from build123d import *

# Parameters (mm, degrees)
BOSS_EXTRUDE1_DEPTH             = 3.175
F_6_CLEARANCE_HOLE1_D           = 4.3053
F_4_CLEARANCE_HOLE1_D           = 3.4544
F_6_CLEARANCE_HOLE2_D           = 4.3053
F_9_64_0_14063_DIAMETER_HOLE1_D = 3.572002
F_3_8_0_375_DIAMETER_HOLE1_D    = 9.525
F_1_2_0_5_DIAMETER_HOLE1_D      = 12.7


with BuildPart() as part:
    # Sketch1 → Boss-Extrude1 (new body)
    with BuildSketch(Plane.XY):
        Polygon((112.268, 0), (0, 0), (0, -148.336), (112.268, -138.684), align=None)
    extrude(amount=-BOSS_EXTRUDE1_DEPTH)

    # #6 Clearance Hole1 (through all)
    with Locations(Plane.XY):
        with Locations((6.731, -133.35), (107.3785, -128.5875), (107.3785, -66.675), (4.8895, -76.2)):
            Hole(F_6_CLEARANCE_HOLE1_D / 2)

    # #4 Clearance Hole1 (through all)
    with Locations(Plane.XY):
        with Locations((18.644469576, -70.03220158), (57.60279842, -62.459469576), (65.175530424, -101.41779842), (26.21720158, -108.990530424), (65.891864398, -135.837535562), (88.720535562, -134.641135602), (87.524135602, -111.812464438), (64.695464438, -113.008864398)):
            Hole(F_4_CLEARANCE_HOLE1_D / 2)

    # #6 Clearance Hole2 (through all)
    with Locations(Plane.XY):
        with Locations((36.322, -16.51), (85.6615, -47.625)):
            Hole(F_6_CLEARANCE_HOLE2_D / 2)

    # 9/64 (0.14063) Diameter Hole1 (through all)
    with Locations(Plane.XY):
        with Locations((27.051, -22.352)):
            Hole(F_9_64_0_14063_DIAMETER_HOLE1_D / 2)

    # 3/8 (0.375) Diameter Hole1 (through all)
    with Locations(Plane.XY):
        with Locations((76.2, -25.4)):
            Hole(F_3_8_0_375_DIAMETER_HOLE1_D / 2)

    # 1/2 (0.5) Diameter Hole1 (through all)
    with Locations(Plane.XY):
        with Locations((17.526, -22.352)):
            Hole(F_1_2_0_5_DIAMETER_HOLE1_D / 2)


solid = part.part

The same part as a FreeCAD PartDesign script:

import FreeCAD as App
import Part
import Sketcher
Q = App.Units.Quantity


def add_polygon(sketch, points):
    """Adds a closed chain of lines whose ends are joined by coincident constraints."""
    first, n = sketch.GeometryCount, len(points)
    for a, b in zip(points, points[1:] + points[:1]):
        sketch.addGeometry(Part.LineSegment(App.Vector(*a, 0), App.Vector(*b, 0)), False)
    for i in range(n):
        sketch.addConstraint(Sketcher.Constraint("Coincident", first + i, 2, first + (i + 1) % n, 1))

doc = App.newDocument("Part")
params = doc.addObject("Spreadsheet::Sheet", "Params")
for row, (alias, value) in enumerate([
    ("sketch1_width", "4.42 in"),
    ("sketch1_height", "5.84 in"),
    ("sketch1_height2", "5.46 in"),
    ("pad1_length", "0.125 in"),
    ("hole_diameter", "0.1695 in"),
    ("sketch3_diameter", "0.136 in"),
    ("hole2_diameter", "0.136 in"),
    ("hole3_diameter", "0.1695 in"),
    ("hole4_diameter", "3.572002 mm"),
    ("sketch6_diameter", "0.375 in"),
    ("hole5_diameter", "0.375 in"),
    ("sketch7_diameter", "0.5 in"),
    ("hole6_diameter", "0.5 in"),
], start=1):
    params.set(f"A{row}", alias)
    params.set(f"B{row}", "=" + value)
    params.setAlias(f"B{row}", alias)

body = doc.addObject("PartDesign::Body", "Body")

sketch1 = body.newObject("Sketcher::SketchObject", "Sketch")
sketch1.AttachmentSupport = (doc.getObject("XY_Plane"), [""])
sketch1.MapMode = "FlatFace"
add_polygon(sketch1, [(112.268, 0), (0, 0), (0, -148.336), (112.268, -138.684)])
sketch1.addConstraint([
    Sketcher.Constraint("Horizontal", 0),
    Sketcher.Constraint("Vertical", 1),
    Sketcher.Constraint("Vertical", 3),
    Sketcher.Constraint("Coincident", 0, 2, -1, 1),
    Sketcher.Constraint("DistanceX", 0, 2, 0, 1, Q("4.42 in")),
    Sketcher.Constraint("DistanceY", 1, 2, 1, 1, Q("5.84 in")),
    Sketcher.Constraint("DistanceY", 3, 1, 3, 2, Q("5.46 in")),
])
sketch1.setExpression("Constraints[8]", "Params.sketch1_width")
sketch1.setExpression("Constraints[9]", "Params.sketch1_height")
sketch1.setExpression("Constraints[10]", "Params.sketch1_height2")
pad1 = body.newObject("PartDesign::Pad", "Pad")
pad1.Profile = sketch1
pad1.setExpression("Length", "Params.pad1_length")
pad1.Reversed = True

sketch2 = body.newObject("Sketcher::SketchObject", "Sketch001")
sketch2.AttachmentSupport = (doc.getObject("XY_Plane"), [""])
sketch2.MapMode = "FlatFace"
sketch2.addGeometry([
    Part.Circle(App.Vector(6.731, -133.35, 0), App.Vector(0, 0, 1), 2.15265),
    Part.Circle(App.Vector(107.3785, -128.5875, 0), App.Vector(0, 0, 1), 2.15265),
    Part.Circle(App.Vector(107.3785, -66.675, 0), App.Vector(0, 0, 1), 2.15265),
    Part.Circle(App.Vector(4.8895, -76.2, 0), App.Vector(0, 0, 1), 2.15265),
], False)
sketch2.addConstraint([
    Sketcher.Constraint("Equal", 0, 1),
    Sketcher.Constraint("Equal", 1, 2),
    Sketcher.Constraint("Equal", 2, 3),
    Sketcher.Constraint("Vertical", 1, 3, 2, 3),
    Sketcher.Constraint("DistanceY", 3, 3, -1, 1, Q("3 in")),
    Sketcher.Constraint("Diameter", 0, Q("0.1695 in")),
    Sketcher.Constraint("DistanceY", 0, 3, -1, 1, Q("5.25 in")),
    Sketcher.Constraint("DistanceX", -1, 1, 0, 3, Q("0.265 in")),
    Sketcher.Constraint("DistanceY", 1, 3, -1, 1, Q("5.0625 in")),
    Sketcher.Constraint("DistanceY", 2, 3, -1, 1, Q("2.625 in")),
    Sketcher.Constraint("DistanceX", 3, 3, 2, 3, Q("4.035 in")),
    Sketcher.Constraint("DistanceX", -1, 1, 1, 3, Q("4.2275 in")),
])
doc.recompute()
hole = body.newObject("PartDesign::Hole", "Hole")
hole.Profile = sketch2
hole.ThreadType = "None"
hole.setExpression("Diameter", "Params.hole_diameter")
hole.DepthType = "ThroughAll"

sketch3 = body.newObject("Sketcher::SketchObject", "Sketch002")
sketch3.AttachmentSupport = (doc.getObject("XY_Plane"), [""])
sketch3.MapMode = "FlatFace"
sketch3.addGeometry([
    Part.Circle(App.Vector(18.64447, -70.032202, 0), App.Vector(0, 0, 1), 1.7272),
    Part.Circle(App.Vector(57.602798, -62.45947, 0), App.Vector(0, 0, 1), 1.7272),
    Part.Circle(App.Vector(65.17553, -101.417798, 0), App.Vector(0, 0, 1), 1.7272),
    Part.Circle(App.Vector(26.217202, -108.99053, 0), App.Vector(0, 0, 1), 1.7272),
    Part.Circle(App.Vector(65.891864, -135.837536, 0), App.Vector(0, 0, 1), 1.7272),
    Part.Circle(App.Vector(88.720536, -134.641136, 0), App.Vector(0, 0, 1), 1.7272),
    Part.Circle(App.Vector(87.524136, -111.812464, 0), App.Vector(0, 0, 1), 1.7272),
    Part.Circle(App.Vector(64.695464, -113.008864, 0), App.Vector(0, 0, 1), 1.7272),
], False)
sketch3.addConstraint([
    Sketcher.Constraint("Equal", 0, 1),
    Sketcher.Constraint("Equal", 1, 2),
    Sketcher.Constraint("Equal", 2, 3),
    Sketcher.Constraint("Equal", 3, 4),
    Sketcher.Constraint("Equal", 4, 5),
    Sketcher.Constraint("Equal", 5, 6),
    Sketcher.Constraint("Equal", 6, 7),
    Sketcher.Constraint("Diameter", 0, Q("0.136 in")),
    Sketcher.Constraint("DistanceY", 0, 3, -1, 1, 70.032202),
    Sketcher.Constraint("DistanceX", -1, 1, 1, 3, 57.602798),
    Sketcher.Constraint("DistanceY", 2, 3, -1, 1, 101.417798),
    Sketcher.Constraint("DistanceX", -1, 1, 3, 3, 26.217202),
    Sketcher.Constraint("DistanceY", 4, 3, 5, 3, 1.1964),
    Sketcher.Constraint("DistanceX", 6, 3, 5, 3, 1.1964),
    Sketcher.Constraint("DistanceX", 7, 3, 4, 3, 1.1964),
    Sketcher.Constraint("DistanceY", 7, 3, 6, 3, 1.1964),
    Sketcher.Constraint("DistanceX", -1, 1, 0, 3, 18.64447),
    Sketcher.Constraint("DistanceY", 1, 3, -1, 1, 62.45947),
    Sketcher.Constraint("DistanceX", -1, 1, 2, 3, 65.17553),
    Sketcher.Constraint("DistanceY", 3, 3, -1, 1, 108.99053),
    Sketcher.Constraint("DistanceX", 4, 3, 5, 3, 22.828671),
    Sketcher.Constraint("DistanceY", 5, 3, 6, 3, 22.828671),
    Sketcher.Constraint("DistanceX", -1, 1, 4, 3, 65.891864),
    Sketcher.Constraint("DistanceY", 4, 3, -1, 1, 135.837536),
])
sketch3.setExpression("Constraints[7]", "Params.sketch3_diameter")
doc.recompute()
hole2 = body.newObject("PartDesign::Hole", "Hole001")
hole2.Profile = sketch3
hole2.ThreadType = "None"
hole2.setExpression("Diameter", "Params.hole2_diameter")
hole2.DepthType = "ThroughAll"

sketch4 = body.newObject("Sketcher::SketchObject", "Sketch003")
sketch4.AttachmentSupport = (doc.getObject("XY_Plane"), [""])
sketch4.MapMode = "FlatFace"
sketch4.addGeometry([
    Part.Circle(App.Vector(36.322, -16.51, 0), App.Vector(0, 0, 1), 2.15265),
    Part.Circle(App.Vector(85.6615, -47.625, 0), App.Vector(0, 0, 1), 2.15265),
], False)
sketch4.addConstraint([
    Sketcher.Constraint("Equal", 0, 1),
    Sketcher.Constraint("Diameter", 0, Q("0.1695 in")),
    Sketcher.Constraint("DistanceX", -1, 1, 0, 3, Q("1.43 in")),
    Sketcher.Constraint("DistanceY", 0, 3, -1, 1, Q("0.65 in")),
    Sketcher.Constraint("DistanceY", 1, 3, -1, 1, Q("1.875 in")),
    Sketcher.Constraint("DistanceX", -1, 1, 1, 3, Q("3.3725 in")),
])
doc.recompute()
hole3 = body.newObject("PartDesign::Hole", "Hole002")
hole3.Profile = sketch4
hole3.ThreadType = "None"
hole3.setExpression("Diameter", "Params.hole3_diameter")
hole3.DepthType = "ThroughAll"

sketch5 = body.newObject("Sketcher::SketchObject", "Sketch004")
sketch5.AttachmentSupport = (doc.getObject("XY_Plane"), [""])
sketch5.MapMode = "FlatFace"
sketch5.addGeometry(Part.Circle(App.Vector(27.051, -22.352, 0), App.Vector(0, 0, 1), 1.786001), False)
sketch5.addConstraint([
    Sketcher.Constraint("Diameter", 0, 3.572002),
    Sketcher.Constraint("DistanceY", 0, 3, -1, 1, Q("0.88 in")),
    Sketcher.Constraint("DistanceX", -1, 1, 0, 3, Q("1.065 in")),
])
doc.recompute()
hole4 = body.newObject("PartDesign::Hole", "Hole003")
hole4.Profile = sketch5
hole4.ThreadType = "None"
hole4.setExpression("Diameter", "Params.hole4_diameter")
hole4.DepthType = "ThroughAll"

sketch6 = body.newObject("Sketcher::SketchObject", "Sketch005")
sketch6.AttachmentSupport = (doc.getObject("XY_Plane"), [""])
sketch6.MapMode = "FlatFace"
sketch6.addGeometry(Part.Circle(App.Vector(76.2, -25.4, 0), App.Vector(0, 0, 1), 4.7625), False)
sketch6.addConstraint([
    Sketcher.Constraint("Diameter", 0, Q("0.375 in")),
    Sketcher.Constraint("DistanceX", -1, 1, 0, 3, Q("3 in")),
    Sketcher.Constraint("DistanceY", 0, 3, -1, 1, Q("1 in")),
])
sketch6.setExpression("Constraints[0]", "Params.sketch6_diameter")
doc.recompute()
hole5 = body.newObject("PartDesign::Hole", "Hole004")
hole5.Profile = sketch6
hole5.ThreadType = "None"
hole5.setExpression("Diameter", "Params.hole5_diameter")
hole5.DepthType = "ThroughAll"

sketch7 = body.newObject("Sketcher::SketchObject", "Sketch006")
sketch7.AttachmentSupport = (doc.getObject("XY_Plane"), [""])
sketch7.MapMode = "FlatFace"
sketch7.addGeometry(Part.Circle(App.Vector(17.526, -22.352, 0), App.Vector(0, 0, 1), 6.35), False)
sketch7.addConstraint([
    Sketcher.Constraint("Diameter", 0, Q("0.5 in")),
    Sketcher.Constraint("DistanceX", -1, 1, 0, 3, Q("0.69 in")),
    Sketcher.Constraint("DistanceY", 0, 3, -1, 1, Q("0.88 in")),
])
sketch7.setExpression("Constraints[0]", "Params.sketch7_diameter")
doc.recompute()
hole6 = body.newObject("PartDesign::Hole", "Hole005")
hole6.Profile = sketch7
hole6.ThreadType = "None"
hole6.setExpression("Diameter", "Params.hole6_diameter")
hole6.DepthType = "ThroughAll"

doc.recompute()
